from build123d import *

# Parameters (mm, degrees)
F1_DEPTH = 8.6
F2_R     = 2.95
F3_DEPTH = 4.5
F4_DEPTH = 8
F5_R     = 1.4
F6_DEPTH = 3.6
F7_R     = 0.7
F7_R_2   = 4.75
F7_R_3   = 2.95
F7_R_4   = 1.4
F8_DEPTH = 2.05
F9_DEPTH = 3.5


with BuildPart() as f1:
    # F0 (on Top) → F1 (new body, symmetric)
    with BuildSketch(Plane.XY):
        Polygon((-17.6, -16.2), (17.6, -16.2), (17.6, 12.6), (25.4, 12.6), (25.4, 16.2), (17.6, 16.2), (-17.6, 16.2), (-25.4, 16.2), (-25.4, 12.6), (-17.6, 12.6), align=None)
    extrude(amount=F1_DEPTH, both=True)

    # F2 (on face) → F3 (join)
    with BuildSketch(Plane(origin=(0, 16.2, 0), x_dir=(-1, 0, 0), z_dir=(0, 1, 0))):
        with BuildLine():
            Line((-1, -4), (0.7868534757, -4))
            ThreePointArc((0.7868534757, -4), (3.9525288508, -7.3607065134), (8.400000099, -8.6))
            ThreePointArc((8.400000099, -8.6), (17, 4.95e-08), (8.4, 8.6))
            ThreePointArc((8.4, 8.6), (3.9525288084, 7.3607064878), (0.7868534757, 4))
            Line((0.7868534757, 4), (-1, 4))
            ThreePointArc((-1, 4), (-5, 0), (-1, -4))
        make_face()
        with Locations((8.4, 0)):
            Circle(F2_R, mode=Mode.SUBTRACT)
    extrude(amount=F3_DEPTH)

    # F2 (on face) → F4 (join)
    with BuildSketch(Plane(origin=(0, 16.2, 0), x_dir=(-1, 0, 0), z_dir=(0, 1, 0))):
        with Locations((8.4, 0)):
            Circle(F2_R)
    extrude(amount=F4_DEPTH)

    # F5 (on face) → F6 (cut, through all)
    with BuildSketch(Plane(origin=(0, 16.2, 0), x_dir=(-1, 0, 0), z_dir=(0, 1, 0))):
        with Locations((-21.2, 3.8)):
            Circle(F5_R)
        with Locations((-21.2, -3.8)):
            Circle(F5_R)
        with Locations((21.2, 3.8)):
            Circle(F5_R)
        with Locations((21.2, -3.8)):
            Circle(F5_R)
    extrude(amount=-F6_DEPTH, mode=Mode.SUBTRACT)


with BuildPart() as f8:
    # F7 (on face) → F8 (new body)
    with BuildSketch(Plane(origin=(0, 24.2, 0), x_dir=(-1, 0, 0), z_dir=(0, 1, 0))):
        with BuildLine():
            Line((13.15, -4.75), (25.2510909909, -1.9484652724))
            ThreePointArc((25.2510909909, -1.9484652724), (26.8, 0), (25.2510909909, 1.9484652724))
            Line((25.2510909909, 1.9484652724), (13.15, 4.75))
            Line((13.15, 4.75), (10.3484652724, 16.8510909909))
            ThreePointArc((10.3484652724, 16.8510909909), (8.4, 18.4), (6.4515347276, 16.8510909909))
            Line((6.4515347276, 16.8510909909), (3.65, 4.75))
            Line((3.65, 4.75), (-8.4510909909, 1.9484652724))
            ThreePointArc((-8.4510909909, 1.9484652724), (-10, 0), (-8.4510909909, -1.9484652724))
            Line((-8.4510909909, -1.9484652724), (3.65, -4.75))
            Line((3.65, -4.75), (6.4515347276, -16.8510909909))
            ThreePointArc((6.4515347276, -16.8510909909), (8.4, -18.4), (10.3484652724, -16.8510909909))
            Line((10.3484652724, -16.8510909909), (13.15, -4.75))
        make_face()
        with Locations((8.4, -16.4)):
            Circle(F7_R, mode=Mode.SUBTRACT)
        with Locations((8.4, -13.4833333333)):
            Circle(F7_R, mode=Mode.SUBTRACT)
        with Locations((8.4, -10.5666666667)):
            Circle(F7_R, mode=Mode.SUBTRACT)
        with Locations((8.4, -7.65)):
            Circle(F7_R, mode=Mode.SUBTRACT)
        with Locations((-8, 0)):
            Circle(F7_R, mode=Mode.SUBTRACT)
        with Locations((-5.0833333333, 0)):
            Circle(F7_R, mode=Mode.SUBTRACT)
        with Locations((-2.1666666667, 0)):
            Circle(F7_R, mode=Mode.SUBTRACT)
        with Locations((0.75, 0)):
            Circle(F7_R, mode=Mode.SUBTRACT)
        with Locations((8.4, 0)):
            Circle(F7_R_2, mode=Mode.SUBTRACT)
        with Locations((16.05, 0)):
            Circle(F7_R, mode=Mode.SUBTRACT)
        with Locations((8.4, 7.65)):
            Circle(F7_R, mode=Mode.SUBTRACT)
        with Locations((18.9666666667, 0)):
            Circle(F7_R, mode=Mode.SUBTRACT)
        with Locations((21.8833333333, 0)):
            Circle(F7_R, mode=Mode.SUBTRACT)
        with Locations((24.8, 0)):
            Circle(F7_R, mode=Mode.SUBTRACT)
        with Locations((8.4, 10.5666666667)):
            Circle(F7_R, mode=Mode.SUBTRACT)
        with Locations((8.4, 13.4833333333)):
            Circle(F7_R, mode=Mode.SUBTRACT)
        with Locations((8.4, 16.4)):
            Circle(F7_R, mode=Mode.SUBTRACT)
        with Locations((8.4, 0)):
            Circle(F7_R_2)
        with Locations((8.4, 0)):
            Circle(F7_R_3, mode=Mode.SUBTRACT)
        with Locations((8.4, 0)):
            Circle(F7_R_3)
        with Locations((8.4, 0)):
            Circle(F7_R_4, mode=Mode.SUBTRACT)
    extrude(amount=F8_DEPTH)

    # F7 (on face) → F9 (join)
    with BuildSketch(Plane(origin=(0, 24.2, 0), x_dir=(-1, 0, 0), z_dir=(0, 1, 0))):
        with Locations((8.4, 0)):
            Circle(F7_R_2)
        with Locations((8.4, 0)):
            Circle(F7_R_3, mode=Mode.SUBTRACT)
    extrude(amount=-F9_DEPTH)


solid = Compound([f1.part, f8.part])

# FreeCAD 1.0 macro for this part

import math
import FreeCAD as App
import Part
import Sketcher
from FreeCAD import Vector

doc = App.newDocument("Part")
body = doc.addObject("PartDesign::Body", "Body")

sketch1 = body.newObject("Sketcher::SketchObject", "Sketch")
sketch1.AttachmentSupport = (doc.getObject("XY_Plane"), [""])
sketch1.MapMode = "FlatFace"
sketch1.addGeometry([
    Part.LineSegment(Vector(-17.6, -16.2, 0), Vector(17.6, -16.2, 0)),
    Part.LineSegment(Vector(17.6, -16.2, 0), Vector(17.6, 12.6, 0)),
    Part.LineSegment(Vector(17.6, 12.6, 0), Vector(25.4, 12.6, 0)),
    Part.LineSegment(Vector(25.4, 12.6, 0), Vector(25.4, 16.2, 0)),
    Part.LineSegment(Vector(25.4, 16.2, 0), Vector(-25.4, 16.2, 0)),
    Part.LineSegment(Vector(-25.4, 16.2, 0), Vector(-25.4, 12.6, 0)),
    Part.LineSegment(Vector(-25.4, 12.6, 0), Vector(-17.6, 12.6, 0)),
    Part.LineSegment(Vector(-17.6, 12.6, 0), Vector(-17.6, -16.2, 0)),
], False)
sketch1.addConstraint([
    Sketcher.Constraint("Coincident", 0, 2, 1, 1),
    Sketcher.Constraint("Coincident", 1, 2, 2, 1),
    Sketcher.Constraint("Coincident", 2, 2, 3, 1),
    Sketcher.Constraint("Coincident", 3, 2, 4, 1),
    Sketcher.Constraint("Coincident", 4, 2, 5, 1),
    Sketcher.Constraint("Coincident", 5, 2, 6, 1),
    Sketcher.Constraint("Coincident", 6, 2, 7, 1),
    Sketcher.Constraint("Coincident", 7, 2, 0, 1),
    Sketcher.Constraint("Horizontal", 0),
    Sketcher.Constraint("Vertical", 1),
    Sketcher.Constraint("Horizontal", 2),
    Sketcher.Constraint("Vertical", 3),
    Sketcher.Constraint("Horizontal", 4),
    Sketcher.Constraint("Vertical", 5),
    Sketcher.Constraint("Horizontal", 6),
    Sketcher.Constraint("Vertical", 7),
    Sketcher.Constraint("Symmetric", 2, 2, 5, 2, -2),
    Sketcher.Constraint("Equal", 2, 6),
    Sketcher.Constraint("DistanceX", 0, 1, 0, 2, 35.2),
    Sketcher.Constraint("DistanceX", 2, 1, 2, 2, 7.8),
    Sketcher.Constraint("DistanceY", 1, 1, 1, 2, 28.8),
    Sketcher.Constraint("DistanceY", 3, 1, 3, 2, 3.6),
    Sketcher.Constraint("DistanceY", 0, 2, -1, 1, 16.2),
])
pad1 = body.newObject("PartDesign::Pad", "Pad")
pad1.Profile = sketch1
pad1.Length = 17.2
pad1.Midplane = True

sketch2 = body.newObject("Sketcher::SketchObject", "Sketch001")
sketch2.AttachmentSupport = (doc.getObject("XZ_Plane"), [""])
sketch2.MapMode = "FlatFace"
sketch2.AttachmentOffset = App.Placement(Vector(0, 0, -16.2), App.Rotation())
sketch2.addGeometry([
    Part.LineSegment(Vector(1, -4, 0), Vector(-0.8, -4, 0)),
    Part.ArcOfCircle(Part.Circle(Vector(-8.4, 0, 0), Vector(0, 0, 1), 8.6), math.radians(-90), math.radians(-28)),
    Part.ArcOfCircle(Part.Circle(Vector(-8.4, 0, 0), Vector(0, 0, 1), 8.6), math.radians(90), math.radians(270)),
    Part.ArcOfCircle(Part.Circle(Vector(-8.4, 0, 0), Vector(0, 0, 1), 8.6), math.radians(28), math.radians(90)),
    Part.LineSegment(Vector(-0.8, 4, 0), Vector(1, 4, 0)),
    Part.ArcOfCircle(Part.Circle(Vector(1, 0, 0), Vector(0, 0, 1), 4), math.radians(-90), math.radians(90)),
    Part.Circle(Vector(-8.4, 0, 0), Vector(0, 0, 1), 3),
], False)
sketch2.addConstraint([
    Sketcher.Constraint("Coincident", 0, 2, 1, 2),
    Sketcher.Constraint("Tangent", 1, 1, 2, 2),
    Sketcher.Constraint("Tangent", 2, 1, 3, 2),
    Sketcher.Constraint("Coincident", 3, 1, 4, 1),
    Sketcher.Constraint("Tangent", 4, 2, 5, 2),
    Sketcher.Constraint("Tangent", 5, 1, 0, 1),
    Sketcher.Constraint("Horizontal", 0),
    Sketcher.Constraint("Horizontal", 4),
    Sketcher.Constraint("Coincident", 6, 3, 1, 3),
    Sketcher.Constraint("Equal", 1, 2),
    Sketcher.Constraint("Equal", 2, 3),
    Sketcher.Constraint("Symmetric", 1, 1, 2, 1, -1),
    Sketcher.Constraint("PointOnObject", 5, 3, -1),
    Sketcher.Constraint("Vertical", 6, 3, 1, 1),
    Sketcher.Constraint("Radius", 5, 4.0),
    Sketcher.Constraint("Diameter", 6, 5.9),
    Sketcher.Constraint("Radius", 1, 8.6),
    Sketcher.Constraint("DistanceX", -1, 1, 5, 3, 1.0),
    Sketcher.Constraint("DistanceX", 1, 3, -1, 1, 8.4),
])
pad2 = body.newObject("PartDesign::Pad", "Pad001")
pad2.Profile = sketch2
pad2.Length = 4.5
pad2.Reversed = True

sketch3 = body.newObject("Sketcher::SketchObject", "Sketch002")
sketch3.AttachmentSupport = (doc.getObject("XZ_Plane"), [""])
sketch3.MapMode = "FlatFace"
sketch3.AttachmentOffset = App.Placement(Vector(0, 0, -16.2), App.Rotation())
sketch3.addGeometry(Part.Circle(Vector(-8.4, 0, 0), Vector(0, 0, 1), 3), False)
sketch3.addConstraint([
    Sketcher.Constraint("PointOnObject", 0, 3, -1),
    Sketcher.Constraint("Diameter", 0, 5.9),
    Sketcher.Constraint("DistanceX", 0, 3, -1, 1, 8.4),
])
pad3 = body.newObject("PartDesign::Pad", "Pad002")
pad3.Profile = sketch3
pad3.Length = 8
pad3.Reversed = True

sketch4 = body.newObject("Sketcher::SketchObject", "Sketch003")
sketch4.AttachmentSupport = (doc.getObject("XZ_Plane"), [""])
sketch4.MapMode = "FlatFace"
sketch4.AttachmentOffset = App.Placement(Vector(0, 0, -16.2), App.Rotation())
sketch4.addGeometry([
    Part.Circle(Vector(21.2, 3.8, 0), Vector(0, 0, 1), 1.4),
    Part.Circle(Vector(21.2, -3.8, 0), Vector(0, 0, 1), 1.4),
    Part.Circle(Vector(-21.2, 3.8, 0), Vector(0, 0, 1), 1.4),
    Part.Circle(Vector(-21.2, -3.8, 0), Vector(0, 0, 1), 1.4),
], False)
sketch4.addConstraint([
    Sketcher.Constraint("Equal", 0, 1),
    Sketcher.Constraint("Equal", 1, 2),
    Sketcher.Constraint("Equal", 2, 3),
    Sketcher.Constraint("Symmetric", 1, 3, 2, 3, -1, 1),
    Sketcher.Constraint("Symmetric", 0, 3, 3, 3, -1, 1),
    Sketcher.Constraint("Symmetric", 0, 3, 2, 3, -2),
    Sketcher.Constraint("Diameter", 0, 2.8),
    Sketcher.Constraint("DistanceX", -1, 1, 0, 3, 21.2),
    Sketcher.Constraint("DistanceY", -1, 1, 0, 3, 3.8),
])
pocket1 = body.newObject("PartDesign::Pocket", "Pocket")
pocket1.Profile = sketch4
pocket1.Type = "ThroughAll"
pocket1.Reversed = True
body2 = doc.addObject("PartDesign::Body", "Body001")

sketch5 = body2.newObject("Sketcher::SketchObject", "Sketch004")
sketch5.AttachmentSupport = (doc.getObject("XZ_Plane001"), [""])
sketch5.MapMode = "FlatFace"
sketch5.AttachmentOffset = App.Placement(Vector(0, 0, -24.2), App.Rotation())
sketch5.addGeometry([
    Part.LineSegment(Vector(-13.2, -4.8, 0), Vector(-25.3, -1.9, 0)),
    Part.ArcOfCircle(Part.Circle(Vector(-24.8, 0, 0), Vector(0, 0, 1), 2), math.radians(103), math.radians(257)),
    Part.LineSegment(Vector(-25.3, 1.9, 0), Vector(-13.2, 4.8, 0)),
    Part.LineSegment(Vector(-13.2, 4.8, 0), Vector(-10.3, 16.9, 0)),
    Part.ArcOfCircle(Part.Circle(Vector(-8.4, 16.4, 0), Vector(0, 0, 1), 2), math.radians(13), math.radians(167)),
    Part.LineSegment(Vector(-6.5, 16.9, 0), Vector(-3.6, 4.8, 0)),
    Part.LineSegment(Vector(-3.6, 4.8, 0), Vector(8.5, 1.9, 0)),
    Part.ArcOfCircle(Part.Circle(Vector(8, 0, 0), Vector(0, 0, 1), 2), math.radians(-77), math.radians(77)),
    Part.LineSegment(Vector(8.5, -1.9, 0), Vector(-3.6, -4.8, 0)),
    Part.LineSegment(Vector(-3.6, -4.8, 0), Vector(-6.5, -16.9, 0)),
    Part.ArcOfCircle(Part.Circle(Vector(-8.4, -16.4, 0), Vector(0, 0, 1), 2), math.radians(-167), math.radians(-13)),
    Part.LineSegment(Vector(-10.3, -16.9, 0), Vector(-13.2, -4.8, 0)),
    Part.Circle(Vector(-8.4, -16.4, 0), Vector(0, 0, 1), 0.7),
    Part.Circle(Vector(-8.4, -13.5, 0), Vector(0, 0, 1), 0.7),
    Part.Circle(Vector(-8.4, -10.6, 0), Vector(0, 0, 1), 0.7),
    Part.Circle(Vector(-8.4, -7.7, 0), Vector(0, 0, 1), 0.7),
    Part.Circle(Vector(8, 0, 0), Vector(0, 0, 1), 0.7),
    Part.Circle(Vector(5.1, 0, 0), Vector(0, 0, 1), 0.7),
    Part.Circle(Vector(2.2, 0, 0), Vector(0, 0, 1), 0.7),
    Part.Circle(Vector(-0.8, 0, 0), Vector(0, 0, 1), 0.7),
    Part.Circle(Vector(-8.4, 0, 0), Vector(0, 0, 1), 1.4),
    Part.Circle(Vector(-16.1, 0, 0), Vector(0, 0, 1), 0.7),
    Part.Circle(Vector(-8.4, 7.7, 0), Vector(0, 0, 1), 0.7),
    Part.Circle(Vector(-19, 0, 0), Vector(0, 0, 1), 0.7),
    Part.Circle(Vector(-21.9, 0, 0), Vector(0, 0, 1), 0.7),
    Part.Circle(Vector(-24.8, 0, 0), Vector(0, 0, 1), 0.7),
    Part.Circle(Vector(-8.4, 10.6, 0), Vector(0, 0, 1), 0.7),
    Part.Circle(Vector(-8.4, 13.5, 0), Vector(0, 0, 1), 0.7),
    Part.Circle(Vector(-8.4, 16.4, 0), Vector(0, 0, 1), 0.7),
], False)
sketch5.addConstraint([
    Sketcher.Constraint("Tangent", 0, 2, 1, 2),
    Sketcher.Constraint("Tangent", 1, 1, 2, 1),
    Sketcher.Constraint("Coincident", 2, 2, 3, 1),
    Sketcher.Constraint("Tangent", 3, 2, 4, 2),
    Sketcher.Constraint("Tangent", 4, 1, 5, 1),
    Sketcher.Constraint("Coincident", 5, 2, 6, 1),
    Sketcher.Constraint("Tangent", 6, 2, 7, 2),
    Sketcher.Constraint("Tangent", 7, 1, 8, 1),
    Sketcher.Constraint("Coincident", 8, 2, 9, 1),
    Sketcher.Constraint("Tangent", 9, 2, 10, 2),
    Sketcher.Constraint("Tangent", 10, 1, 11, 1),
    Sketcher.Constraint("Coincident", 11, 2, 0, 1),
    Sketcher.Constraint("Coincident", 12, 3, 10, 3),
    Sketcher.Constraint("Coincident", 16, 3, 7, 3),
    Sketcher.Constraint("Coincident", 25, 3, 1, 3),
    Sketcher.Constraint("Coincident", 28, 3, 4, 3),
    Sketcher.Constraint("Equal", 1, 4),
    Sketcher.Constraint("Equal", 4, 7),
    Sketcher.Constraint("Equal", 7, 10),
    Sketcher.Constraint("Equal", 12, 13),
    Sketcher.Constraint("Equal", 13, 14),
    Sketcher.Constraint("Equal", 14, 15),
    Sketcher.Constraint("Equal", 15, 16),
    Sketcher.Constraint("Equal", 16, 17),
    Sketcher.Constraint("Equal", 17, 18),
    Sketcher.Constraint("Equal", 18, 19),
    Sketcher.Constraint("Equal", 19, 21),
    Sketcher.Constraint("Equal", 21, 22),
    Sketcher.Constraint("Equal", 22, 23),
    Sketcher.Constraint("Equal", 23, 24),
    Sketcher.Constraint("Equal", 24, 25),
    Sketcher.Constraint("Equal", 25, 26),
    Sketcher.Constraint("Equal", 26, 27),
    Sketcher.Constraint("Equal", 27, 28),
    Sketcher.Constraint("Symmetric", 4, 3, 10, 3, -1),
    Sketcher.Constraint("Symmetric", 15, 3, 22, 3, -1),
    Sketcher.Constraint("Symmetric", 14, 3, 26, 3, -1),
    Sketcher.Constraint("Symmetric", 13, 3, 27, 3, -1),
    Sketcher.Constraint("Symmetric", 0, 2, 1, 1, -1),
    Sketcher.Constraint("Symmetric", 6, 2, 7, 1, -1),
    Sketcher.Constraint("PointOnObject", 17, 3, -1),
    Sketcher.Constraint("PointOnObject", 18, 3, -1),
    Sketcher.Constraint("PointOnObject", 19, 3, -1),
    Sketcher.Constraint("PointOnObject", 20, 3, -1),
    Sketcher.Constraint("PointOnObject", 21, 3, -1),
    Sketcher.Constraint("PointOnObject", 23, 3, -1),
    Sketcher.Constraint("PointOnObject", 24, 3, -1),
    Sketcher.Constraint("Perpendicular", 0, 3),
    Sketcher.Constraint("Perpendicular", 2, 5),
    Sketcher.Constraint("Perpendicular", 3, 6),
    Sketcher.Constraint("Perpendicular", 6, 9),
    Sketcher.Constraint("Perpendicular", 8, 11),
    Sketcher.Constraint("Horizontal", 2, 2, 5, 2),
    Sketcher.Constraint("Vertical", 12, 3, 13, 3),
    Sketcher.Constraint("Vertical", 13, 3, 14, 3),
    Sketcher.Constraint("Vertical", 14, 3, 15, 3),
    Sketcher.Constraint("Vertical", 15, 3, 20, 3),
    Sketcher.Constraint("Equal", 2, 3),
    Sketcher.Constraint("Radius", 1, 2.0),
    Sketcher.Constraint("Diameter", 12, 1.4),
    Sketcher.Constraint("Diameter", 20, 2.8),
    Sketcher.Constraint("DistanceX", -1, 1, 7, 3, 8.0),
    Sketcher.Constraint("DistanceX", 1, 3, -1, 1, 24.8),
    Sketcher.Constraint("DistanceX", 21, 3, 19, 3, 15.3),
    Sketcher.Constraint("DistanceX", 21, 3, 2, 2, 2.9),
    Sketcher.Constraint("DistanceY", 2, 2, 22, 3, 2.9),
    Sketcher.Constraint("DistanceX", 5, 2, 19, 3, 2.9),
    Sketcher.Constraint("DistanceY", 13, 3, -1, 1, 13.483333),
    Sketcher.Constraint("DistanceY", 14, 3, -1, 1, 10.566667),
    Sketcher.Constraint("DistanceX", -1, 1, 17, 3, 5.083333),
    Sketcher.Constraint("DistanceX", -1, 1, 18, 3, 2.166667),
    Sketcher.Constraint("DistanceX", 23, 3, -1, 1, 18.966667),
    Sketcher.Constraint("DistanceX", 24, 3, -1, 1, 21.883333),
])
pad4 = body2.newObject("PartDesign::Pad", "Pad003")
pad4.Profile = sketch5
pad4.Length = 2.05
pad4.Reversed = True

sketch6 = body2.newObject("Sketcher::SketchObject", "Sketch005")
sketch6.AttachmentSupport = (doc.getObject("XZ_Plane001"), [""])
sketch6.MapMode = "FlatFace"
sketch6.AttachmentOffset = App.Placement(Vector(0, 0, -24.2), App.Rotation())
sketch6.addGeometry([
    Part.Circle(Vector(-8.4, 0, 0), Vector(0, 0, 1), 4.8),
    Part.Circle(Vector(-8.4, 0, 0), Vector(0, 0, 1), 3),
], False)
sketch6.addConstraint([
    Sketcher.Constraint("Coincident", 1, 3, 0, 3),
    Sketcher.Constraint("PointOnObject", 0, 3, -1),
    Sketcher.Constraint("Diameter", 0, 9.5),
    Sketcher.Constraint("Diameter", 1, 5.9),
    Sketcher.Constraint("DistanceX", 0, 3, -1, 1, 8.4),
])
pad5 = body2.newObject("PartDesign::Pad", "Pad004")
pad5.Profile = sketch6
pad5.Length = 3.5

doc.recompute()
